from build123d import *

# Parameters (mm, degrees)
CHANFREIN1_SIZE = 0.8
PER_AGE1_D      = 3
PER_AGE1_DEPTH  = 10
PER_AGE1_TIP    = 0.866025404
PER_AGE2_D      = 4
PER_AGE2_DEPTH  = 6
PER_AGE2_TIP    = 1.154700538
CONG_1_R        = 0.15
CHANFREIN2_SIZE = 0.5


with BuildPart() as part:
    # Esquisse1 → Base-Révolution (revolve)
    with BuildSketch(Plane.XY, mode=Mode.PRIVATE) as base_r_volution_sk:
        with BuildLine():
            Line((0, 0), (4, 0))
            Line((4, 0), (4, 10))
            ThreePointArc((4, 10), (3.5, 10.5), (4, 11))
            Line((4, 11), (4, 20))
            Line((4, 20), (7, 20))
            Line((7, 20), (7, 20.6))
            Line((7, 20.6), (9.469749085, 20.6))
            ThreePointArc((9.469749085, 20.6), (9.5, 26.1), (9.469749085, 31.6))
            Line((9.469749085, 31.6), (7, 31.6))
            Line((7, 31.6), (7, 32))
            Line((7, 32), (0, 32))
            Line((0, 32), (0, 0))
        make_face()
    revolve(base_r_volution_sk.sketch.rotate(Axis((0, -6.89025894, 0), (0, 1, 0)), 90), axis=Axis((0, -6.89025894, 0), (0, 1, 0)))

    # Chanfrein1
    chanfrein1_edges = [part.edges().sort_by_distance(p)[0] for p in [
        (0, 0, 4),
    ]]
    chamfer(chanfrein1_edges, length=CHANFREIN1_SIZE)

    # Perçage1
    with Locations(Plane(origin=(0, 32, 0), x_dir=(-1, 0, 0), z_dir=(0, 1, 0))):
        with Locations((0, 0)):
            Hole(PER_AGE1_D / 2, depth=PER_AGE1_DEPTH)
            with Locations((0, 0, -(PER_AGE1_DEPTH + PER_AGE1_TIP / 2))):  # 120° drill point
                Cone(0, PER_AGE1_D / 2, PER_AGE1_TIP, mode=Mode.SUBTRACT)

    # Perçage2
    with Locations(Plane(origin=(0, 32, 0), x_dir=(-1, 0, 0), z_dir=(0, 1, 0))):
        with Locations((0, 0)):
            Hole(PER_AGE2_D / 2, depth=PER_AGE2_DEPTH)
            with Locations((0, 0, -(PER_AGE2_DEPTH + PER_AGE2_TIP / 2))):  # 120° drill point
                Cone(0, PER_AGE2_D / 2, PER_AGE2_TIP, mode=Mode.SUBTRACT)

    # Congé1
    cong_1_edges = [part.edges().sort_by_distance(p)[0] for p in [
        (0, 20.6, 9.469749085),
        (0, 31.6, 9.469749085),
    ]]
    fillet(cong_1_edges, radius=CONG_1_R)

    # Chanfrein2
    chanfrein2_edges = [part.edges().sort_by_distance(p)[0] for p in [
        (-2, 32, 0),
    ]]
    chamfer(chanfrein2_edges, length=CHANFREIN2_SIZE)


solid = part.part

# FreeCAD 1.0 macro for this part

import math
import FreeCAD as App
import Part
import Sketcher

V = App.Vector


def edges_at(feature, points):
    """Names of the edges that pass closest to the given points."""
    edges = feature.Shape.Edges
    near = lambda p: min(range(len(edges)), key=lambda i: edges[i].distToShape(Part.Vertex(*p))[0])
    return sorted({f"Edge{near(p) + 1}" for p in points})

doc = App.newDocument("Part")
params = doc.addObject("Spreadsheet::Sheet", "Params")
for row, (alias, value) in enumerate([
    ("sketch1_radius", "500.000002 mm"),
    ("sketch1_radius2", "0.5 mm"),
    ("sketch1_width", "4 mm"),
    ("sketch1_width2", "3 mm"),
    ("sketch1_height", "10 mm"),
    ("revolution_angle", "360 deg"),
    ("chamfer_size", "0.8 mm"),
    ("sketch2_diameter", "3 mm"),
    ("hole_diameter", "3 mm"),
    ("hole_depth", "10 mm"),
    ("sketch3_diameter", "4 mm"),
    ("hole2_diameter", "4 mm"),
    ("hole2_depth", "6 mm"),
    ("fillet_radius", "0.15 mm"),
    ("chamfer2_size", "0.5 mm"),
], start=1):
    params.set(f"A{row}", alias)
    params.set(f"B{row}", "=" + value)
    params.setAlias(f"B{row}", alias)

body = doc.addObject("PartDesign::Body", "Body")

sketch1 = body.newObject("Sketcher::SketchObject", "Sketch")
sketch1.AttachmentSupport = (doc.getObject("XY_Plane"), [""])
sketch1.MapMode = "FlatFace"
sketch1.addGeometry([
    Part.LineSegment(V(0, 0, 0), V(4, 0, 0)),
    Part.LineSegment(V(4, 0, 0), V(4, 10, 0)),
    Part.ArcOfCircle(Part.Circle(V(4, 10.5, 0), V(0, 0, 1), 0.5), math.radians(90), math.radians(270)),
    Part.LineSegment(V(4, 11, 0), V(4, 20, 0)),
    Part.LineSegment(V(4, 20, 0), V(7, 20, 0)),
    Part.LineSegment(V(7, 20, 0), V(7, 20.6, 0)),
    Part.LineSegment(V(7, 20.6, 0), V(9.47, 20.6, 0)),
    Part.ArcOfCircle(Part.Circle(V(-490.5, 26.1, 0), V(0, 0, 1), 500), math.radians(-0.63), math.radians(0.63)),
    Part.LineSegment(V(9.47, 31.6, 0), V(7, 31.6, 0)),
    Part.LineSegment(V(7, 31.6, 0), V(7, 32, 0)),
    Part.LineSegment(V(7, 32, 0), V(0, 32, 0)),
    Part.LineSegment(V(0, 32, 0), V(0, 0, 0)),
], False)
sketch1.addConstraint([
    Sketcher.Constraint("Coincident", 0, 2, 1, 1),
    Sketcher.Constraint("Coincident", 1, 2, 2, 2),
    Sketcher.Constraint("Coincident", 2, 1, 3, 1),
    Sketcher.Constraint("Coincident", 3, 2, 4, 1),
    Sketcher.Constraint("Coincident", 4, 2, 5, 1),
    Sketcher.Constraint("Coincident", 5, 2, 6, 1),
    Sketcher.Constraint("Coincident", 6, 2, 7, 1),
    Sketcher.Constraint("Coincident", 7, 2, 8, 1),
    Sketcher.Constraint("Coincident", 8, 2, 9, 1),
    Sketcher.Constraint("Coincident", 9, 2, 10, 1),
    Sketcher.Constraint("Coincident", 10, 2, 11, 1),
    Sketcher.Constraint("Coincident", 11, 2, 0, 1),
    Sketcher.Constraint("Horizontal", 0),
    Sketcher.Constraint("Vertical", 1),
    Sketcher.Constraint("Vertical", 3),
    Sketcher.Constraint("Horizontal", 4),
    Sketcher.Constraint("Vertical", 5),
    Sketcher.Constraint("Horizontal", 6),
    Sketcher.Constraint("Horizontal", 8),
    Sketcher.Constraint("Vertical", 9),
    Sketcher.Constraint("Horizontal", 10),
    Sketcher.Constraint("Vertical", 11),
    Sketcher.Constraint("Coincident", 11, 2, -1, 1),
    Sketcher.Constraint("Vertical", 2, 3, 0, 2),
    Sketcher.Constraint("Vertical", 1, 2, 2, 1),
    Sketcher.Constraint("Vertical", 6, 2, 7, 2),
    Sketcher.Constraint("Vertical", 5, 2, 8, 2),
    Sketcher.Constraint("Radius", 7, 500.000002),
    Sketcher.Constraint("Radius", 2, 0.5),
    Sketcher.Constraint("DistanceX", 0, 1, 0, 2, 4.0),
    Sketcher.Constraint("DistanceX", 4, 1, 4, 2, 3.0),
    Sketcher.Constraint("DistanceY", 1, 1, 1, 2, 10.0),
    Sketcher.Constraint("DistanceY", 3, 1, 3, 2, 9.0),
    Sketcher.Constraint("DistanceY", 11, 2, 11, 1, 32.0),
    Sketcher.Constraint("DistanceY", 5, 1, 5, 2, 0.6),
    Sketcher.Constraint("DistanceY", 9, 1, 9, 2, 0.4),
    Sketcher.Constraint("DistanceX", 7, 3, -1, 1, 490.500002),
])
sketch1.setExpression("Constraints[27]", "Params.sketch1_radius")
sketch1.setExpression("Constraints[28]", "Params.sketch1_radius2")
sketch1.setExpression("Constraints[29]", "Params.sketch1_width")
sketch1.setExpression("Constraints[30]", "Params.sketch1_width2")
sketch1.setExpression("Constraints[31]", "Params.sketch1_height")
revolution = body.newObject("PartDesign::Revolution", "Revolution")
revolution.Profile = sketch1
revolution.ReferenceAxis = (sketch1, ["V_Axis"])
revolution.setExpression("Angle", "Params.revolution_angle")
doc.recompute()

chamfer = body.newObject("PartDesign::Chamfer", "Chamfer")
chamfer.Base = (revolution, edges_at(revolution, [(0, 0, 4)]))
chamfer.setExpression("Size", "Params.chamfer_size")

sketch2 = body.newObject("Sketcher::SketchObject", "Sketch001")
sketch2.AttachmentSupport = (doc.getObject("XZ_Plane"), [""])
sketch2.MapMode = "FlatFace"
sketch2.AttachmentOffset = App.Placement(V(0, 0, -32), App.Rotation())
sketch2.addGeometry(Part.Circle(V(0, 0, 0), V(0, 0, 1), 1.5), False)
sketch2.addConstraint([
    Sketcher.Constraint("Coincident", 0, 3, -1, 1),
    Sketcher.Constraint("Diameter", 0, 3.0),
])
sketch2.setExpression("Constraints[1]", "Params.sketch2_diameter")
doc.recompute()
hole = body.newObject("PartDesign::Hole", "Hole")
hole.Profile = sketch2
hole.ThreadType = "None"
hole.setExpression("Diameter", "Params.hole_diameter")
hole.DepthType = "Dimension"
hole.setExpression("Depth", "Params.hole_depth")
hole.DrillPoint = "Angled"
hole.DrillPointAngle = 120
hole.Reversed = True

sketch3 = body.newObject("Sketcher::SketchObject", "Sketch002")
sketch3.AttachmentSupport = (doc.getObject("XZ_Plane"), [""])
sketch3.MapMode = "FlatFace"
sketch3.AttachmentOffset = App.Placement(V(0, 0, -32), App.Rotation())
sketch3.addGeometry(Part.Circle(V(0, 0, 0), V(0, 0, 1), 2), False)
sketch3.addConstraint([
    Sketcher.Constraint("Coincident", 0, 3, -1, 1),
    Sketcher.Constraint("Diameter", 0, 4.0),
])
sketch3.setExpression("Constraints[1]", "Params.sketch3_diameter")
doc.recompute()
hole2 = body.newObject("PartDesign::Hole", "Hole001")
hole2.Profile = sketch3
hole2.ThreadType = "None"
hole2.setExpression("Diameter", "Params.hole2_diameter")
hole2.DepthType = "Dimension"
hole2.setExpression("Depth", "Params.hole2_depth")
hole2.DrillPoint = "Angled"
hole2.DrillPointAngle = 120
hole2.Reversed = True
doc.recompute()

fillet = body.newObject("PartDesign::Fillet", "Fillet")
fillet.Base = (hole2, edges_at(hole2, [(0, 20.6, 9.47), (0, 31.6, 9.47)]))
fillet.setExpression("Radius", "Params.fillet_radius")
doc.recompute()

chamfer2 = body.newObject("PartDesign::Chamfer", "Chamfer001")
chamfer2.Base = (fillet, edges_at(fillet, [(-2, 32, 0)]))
chamfer2.setExpression("Size", "Params.chamfer2_size")

doc.recompute()
